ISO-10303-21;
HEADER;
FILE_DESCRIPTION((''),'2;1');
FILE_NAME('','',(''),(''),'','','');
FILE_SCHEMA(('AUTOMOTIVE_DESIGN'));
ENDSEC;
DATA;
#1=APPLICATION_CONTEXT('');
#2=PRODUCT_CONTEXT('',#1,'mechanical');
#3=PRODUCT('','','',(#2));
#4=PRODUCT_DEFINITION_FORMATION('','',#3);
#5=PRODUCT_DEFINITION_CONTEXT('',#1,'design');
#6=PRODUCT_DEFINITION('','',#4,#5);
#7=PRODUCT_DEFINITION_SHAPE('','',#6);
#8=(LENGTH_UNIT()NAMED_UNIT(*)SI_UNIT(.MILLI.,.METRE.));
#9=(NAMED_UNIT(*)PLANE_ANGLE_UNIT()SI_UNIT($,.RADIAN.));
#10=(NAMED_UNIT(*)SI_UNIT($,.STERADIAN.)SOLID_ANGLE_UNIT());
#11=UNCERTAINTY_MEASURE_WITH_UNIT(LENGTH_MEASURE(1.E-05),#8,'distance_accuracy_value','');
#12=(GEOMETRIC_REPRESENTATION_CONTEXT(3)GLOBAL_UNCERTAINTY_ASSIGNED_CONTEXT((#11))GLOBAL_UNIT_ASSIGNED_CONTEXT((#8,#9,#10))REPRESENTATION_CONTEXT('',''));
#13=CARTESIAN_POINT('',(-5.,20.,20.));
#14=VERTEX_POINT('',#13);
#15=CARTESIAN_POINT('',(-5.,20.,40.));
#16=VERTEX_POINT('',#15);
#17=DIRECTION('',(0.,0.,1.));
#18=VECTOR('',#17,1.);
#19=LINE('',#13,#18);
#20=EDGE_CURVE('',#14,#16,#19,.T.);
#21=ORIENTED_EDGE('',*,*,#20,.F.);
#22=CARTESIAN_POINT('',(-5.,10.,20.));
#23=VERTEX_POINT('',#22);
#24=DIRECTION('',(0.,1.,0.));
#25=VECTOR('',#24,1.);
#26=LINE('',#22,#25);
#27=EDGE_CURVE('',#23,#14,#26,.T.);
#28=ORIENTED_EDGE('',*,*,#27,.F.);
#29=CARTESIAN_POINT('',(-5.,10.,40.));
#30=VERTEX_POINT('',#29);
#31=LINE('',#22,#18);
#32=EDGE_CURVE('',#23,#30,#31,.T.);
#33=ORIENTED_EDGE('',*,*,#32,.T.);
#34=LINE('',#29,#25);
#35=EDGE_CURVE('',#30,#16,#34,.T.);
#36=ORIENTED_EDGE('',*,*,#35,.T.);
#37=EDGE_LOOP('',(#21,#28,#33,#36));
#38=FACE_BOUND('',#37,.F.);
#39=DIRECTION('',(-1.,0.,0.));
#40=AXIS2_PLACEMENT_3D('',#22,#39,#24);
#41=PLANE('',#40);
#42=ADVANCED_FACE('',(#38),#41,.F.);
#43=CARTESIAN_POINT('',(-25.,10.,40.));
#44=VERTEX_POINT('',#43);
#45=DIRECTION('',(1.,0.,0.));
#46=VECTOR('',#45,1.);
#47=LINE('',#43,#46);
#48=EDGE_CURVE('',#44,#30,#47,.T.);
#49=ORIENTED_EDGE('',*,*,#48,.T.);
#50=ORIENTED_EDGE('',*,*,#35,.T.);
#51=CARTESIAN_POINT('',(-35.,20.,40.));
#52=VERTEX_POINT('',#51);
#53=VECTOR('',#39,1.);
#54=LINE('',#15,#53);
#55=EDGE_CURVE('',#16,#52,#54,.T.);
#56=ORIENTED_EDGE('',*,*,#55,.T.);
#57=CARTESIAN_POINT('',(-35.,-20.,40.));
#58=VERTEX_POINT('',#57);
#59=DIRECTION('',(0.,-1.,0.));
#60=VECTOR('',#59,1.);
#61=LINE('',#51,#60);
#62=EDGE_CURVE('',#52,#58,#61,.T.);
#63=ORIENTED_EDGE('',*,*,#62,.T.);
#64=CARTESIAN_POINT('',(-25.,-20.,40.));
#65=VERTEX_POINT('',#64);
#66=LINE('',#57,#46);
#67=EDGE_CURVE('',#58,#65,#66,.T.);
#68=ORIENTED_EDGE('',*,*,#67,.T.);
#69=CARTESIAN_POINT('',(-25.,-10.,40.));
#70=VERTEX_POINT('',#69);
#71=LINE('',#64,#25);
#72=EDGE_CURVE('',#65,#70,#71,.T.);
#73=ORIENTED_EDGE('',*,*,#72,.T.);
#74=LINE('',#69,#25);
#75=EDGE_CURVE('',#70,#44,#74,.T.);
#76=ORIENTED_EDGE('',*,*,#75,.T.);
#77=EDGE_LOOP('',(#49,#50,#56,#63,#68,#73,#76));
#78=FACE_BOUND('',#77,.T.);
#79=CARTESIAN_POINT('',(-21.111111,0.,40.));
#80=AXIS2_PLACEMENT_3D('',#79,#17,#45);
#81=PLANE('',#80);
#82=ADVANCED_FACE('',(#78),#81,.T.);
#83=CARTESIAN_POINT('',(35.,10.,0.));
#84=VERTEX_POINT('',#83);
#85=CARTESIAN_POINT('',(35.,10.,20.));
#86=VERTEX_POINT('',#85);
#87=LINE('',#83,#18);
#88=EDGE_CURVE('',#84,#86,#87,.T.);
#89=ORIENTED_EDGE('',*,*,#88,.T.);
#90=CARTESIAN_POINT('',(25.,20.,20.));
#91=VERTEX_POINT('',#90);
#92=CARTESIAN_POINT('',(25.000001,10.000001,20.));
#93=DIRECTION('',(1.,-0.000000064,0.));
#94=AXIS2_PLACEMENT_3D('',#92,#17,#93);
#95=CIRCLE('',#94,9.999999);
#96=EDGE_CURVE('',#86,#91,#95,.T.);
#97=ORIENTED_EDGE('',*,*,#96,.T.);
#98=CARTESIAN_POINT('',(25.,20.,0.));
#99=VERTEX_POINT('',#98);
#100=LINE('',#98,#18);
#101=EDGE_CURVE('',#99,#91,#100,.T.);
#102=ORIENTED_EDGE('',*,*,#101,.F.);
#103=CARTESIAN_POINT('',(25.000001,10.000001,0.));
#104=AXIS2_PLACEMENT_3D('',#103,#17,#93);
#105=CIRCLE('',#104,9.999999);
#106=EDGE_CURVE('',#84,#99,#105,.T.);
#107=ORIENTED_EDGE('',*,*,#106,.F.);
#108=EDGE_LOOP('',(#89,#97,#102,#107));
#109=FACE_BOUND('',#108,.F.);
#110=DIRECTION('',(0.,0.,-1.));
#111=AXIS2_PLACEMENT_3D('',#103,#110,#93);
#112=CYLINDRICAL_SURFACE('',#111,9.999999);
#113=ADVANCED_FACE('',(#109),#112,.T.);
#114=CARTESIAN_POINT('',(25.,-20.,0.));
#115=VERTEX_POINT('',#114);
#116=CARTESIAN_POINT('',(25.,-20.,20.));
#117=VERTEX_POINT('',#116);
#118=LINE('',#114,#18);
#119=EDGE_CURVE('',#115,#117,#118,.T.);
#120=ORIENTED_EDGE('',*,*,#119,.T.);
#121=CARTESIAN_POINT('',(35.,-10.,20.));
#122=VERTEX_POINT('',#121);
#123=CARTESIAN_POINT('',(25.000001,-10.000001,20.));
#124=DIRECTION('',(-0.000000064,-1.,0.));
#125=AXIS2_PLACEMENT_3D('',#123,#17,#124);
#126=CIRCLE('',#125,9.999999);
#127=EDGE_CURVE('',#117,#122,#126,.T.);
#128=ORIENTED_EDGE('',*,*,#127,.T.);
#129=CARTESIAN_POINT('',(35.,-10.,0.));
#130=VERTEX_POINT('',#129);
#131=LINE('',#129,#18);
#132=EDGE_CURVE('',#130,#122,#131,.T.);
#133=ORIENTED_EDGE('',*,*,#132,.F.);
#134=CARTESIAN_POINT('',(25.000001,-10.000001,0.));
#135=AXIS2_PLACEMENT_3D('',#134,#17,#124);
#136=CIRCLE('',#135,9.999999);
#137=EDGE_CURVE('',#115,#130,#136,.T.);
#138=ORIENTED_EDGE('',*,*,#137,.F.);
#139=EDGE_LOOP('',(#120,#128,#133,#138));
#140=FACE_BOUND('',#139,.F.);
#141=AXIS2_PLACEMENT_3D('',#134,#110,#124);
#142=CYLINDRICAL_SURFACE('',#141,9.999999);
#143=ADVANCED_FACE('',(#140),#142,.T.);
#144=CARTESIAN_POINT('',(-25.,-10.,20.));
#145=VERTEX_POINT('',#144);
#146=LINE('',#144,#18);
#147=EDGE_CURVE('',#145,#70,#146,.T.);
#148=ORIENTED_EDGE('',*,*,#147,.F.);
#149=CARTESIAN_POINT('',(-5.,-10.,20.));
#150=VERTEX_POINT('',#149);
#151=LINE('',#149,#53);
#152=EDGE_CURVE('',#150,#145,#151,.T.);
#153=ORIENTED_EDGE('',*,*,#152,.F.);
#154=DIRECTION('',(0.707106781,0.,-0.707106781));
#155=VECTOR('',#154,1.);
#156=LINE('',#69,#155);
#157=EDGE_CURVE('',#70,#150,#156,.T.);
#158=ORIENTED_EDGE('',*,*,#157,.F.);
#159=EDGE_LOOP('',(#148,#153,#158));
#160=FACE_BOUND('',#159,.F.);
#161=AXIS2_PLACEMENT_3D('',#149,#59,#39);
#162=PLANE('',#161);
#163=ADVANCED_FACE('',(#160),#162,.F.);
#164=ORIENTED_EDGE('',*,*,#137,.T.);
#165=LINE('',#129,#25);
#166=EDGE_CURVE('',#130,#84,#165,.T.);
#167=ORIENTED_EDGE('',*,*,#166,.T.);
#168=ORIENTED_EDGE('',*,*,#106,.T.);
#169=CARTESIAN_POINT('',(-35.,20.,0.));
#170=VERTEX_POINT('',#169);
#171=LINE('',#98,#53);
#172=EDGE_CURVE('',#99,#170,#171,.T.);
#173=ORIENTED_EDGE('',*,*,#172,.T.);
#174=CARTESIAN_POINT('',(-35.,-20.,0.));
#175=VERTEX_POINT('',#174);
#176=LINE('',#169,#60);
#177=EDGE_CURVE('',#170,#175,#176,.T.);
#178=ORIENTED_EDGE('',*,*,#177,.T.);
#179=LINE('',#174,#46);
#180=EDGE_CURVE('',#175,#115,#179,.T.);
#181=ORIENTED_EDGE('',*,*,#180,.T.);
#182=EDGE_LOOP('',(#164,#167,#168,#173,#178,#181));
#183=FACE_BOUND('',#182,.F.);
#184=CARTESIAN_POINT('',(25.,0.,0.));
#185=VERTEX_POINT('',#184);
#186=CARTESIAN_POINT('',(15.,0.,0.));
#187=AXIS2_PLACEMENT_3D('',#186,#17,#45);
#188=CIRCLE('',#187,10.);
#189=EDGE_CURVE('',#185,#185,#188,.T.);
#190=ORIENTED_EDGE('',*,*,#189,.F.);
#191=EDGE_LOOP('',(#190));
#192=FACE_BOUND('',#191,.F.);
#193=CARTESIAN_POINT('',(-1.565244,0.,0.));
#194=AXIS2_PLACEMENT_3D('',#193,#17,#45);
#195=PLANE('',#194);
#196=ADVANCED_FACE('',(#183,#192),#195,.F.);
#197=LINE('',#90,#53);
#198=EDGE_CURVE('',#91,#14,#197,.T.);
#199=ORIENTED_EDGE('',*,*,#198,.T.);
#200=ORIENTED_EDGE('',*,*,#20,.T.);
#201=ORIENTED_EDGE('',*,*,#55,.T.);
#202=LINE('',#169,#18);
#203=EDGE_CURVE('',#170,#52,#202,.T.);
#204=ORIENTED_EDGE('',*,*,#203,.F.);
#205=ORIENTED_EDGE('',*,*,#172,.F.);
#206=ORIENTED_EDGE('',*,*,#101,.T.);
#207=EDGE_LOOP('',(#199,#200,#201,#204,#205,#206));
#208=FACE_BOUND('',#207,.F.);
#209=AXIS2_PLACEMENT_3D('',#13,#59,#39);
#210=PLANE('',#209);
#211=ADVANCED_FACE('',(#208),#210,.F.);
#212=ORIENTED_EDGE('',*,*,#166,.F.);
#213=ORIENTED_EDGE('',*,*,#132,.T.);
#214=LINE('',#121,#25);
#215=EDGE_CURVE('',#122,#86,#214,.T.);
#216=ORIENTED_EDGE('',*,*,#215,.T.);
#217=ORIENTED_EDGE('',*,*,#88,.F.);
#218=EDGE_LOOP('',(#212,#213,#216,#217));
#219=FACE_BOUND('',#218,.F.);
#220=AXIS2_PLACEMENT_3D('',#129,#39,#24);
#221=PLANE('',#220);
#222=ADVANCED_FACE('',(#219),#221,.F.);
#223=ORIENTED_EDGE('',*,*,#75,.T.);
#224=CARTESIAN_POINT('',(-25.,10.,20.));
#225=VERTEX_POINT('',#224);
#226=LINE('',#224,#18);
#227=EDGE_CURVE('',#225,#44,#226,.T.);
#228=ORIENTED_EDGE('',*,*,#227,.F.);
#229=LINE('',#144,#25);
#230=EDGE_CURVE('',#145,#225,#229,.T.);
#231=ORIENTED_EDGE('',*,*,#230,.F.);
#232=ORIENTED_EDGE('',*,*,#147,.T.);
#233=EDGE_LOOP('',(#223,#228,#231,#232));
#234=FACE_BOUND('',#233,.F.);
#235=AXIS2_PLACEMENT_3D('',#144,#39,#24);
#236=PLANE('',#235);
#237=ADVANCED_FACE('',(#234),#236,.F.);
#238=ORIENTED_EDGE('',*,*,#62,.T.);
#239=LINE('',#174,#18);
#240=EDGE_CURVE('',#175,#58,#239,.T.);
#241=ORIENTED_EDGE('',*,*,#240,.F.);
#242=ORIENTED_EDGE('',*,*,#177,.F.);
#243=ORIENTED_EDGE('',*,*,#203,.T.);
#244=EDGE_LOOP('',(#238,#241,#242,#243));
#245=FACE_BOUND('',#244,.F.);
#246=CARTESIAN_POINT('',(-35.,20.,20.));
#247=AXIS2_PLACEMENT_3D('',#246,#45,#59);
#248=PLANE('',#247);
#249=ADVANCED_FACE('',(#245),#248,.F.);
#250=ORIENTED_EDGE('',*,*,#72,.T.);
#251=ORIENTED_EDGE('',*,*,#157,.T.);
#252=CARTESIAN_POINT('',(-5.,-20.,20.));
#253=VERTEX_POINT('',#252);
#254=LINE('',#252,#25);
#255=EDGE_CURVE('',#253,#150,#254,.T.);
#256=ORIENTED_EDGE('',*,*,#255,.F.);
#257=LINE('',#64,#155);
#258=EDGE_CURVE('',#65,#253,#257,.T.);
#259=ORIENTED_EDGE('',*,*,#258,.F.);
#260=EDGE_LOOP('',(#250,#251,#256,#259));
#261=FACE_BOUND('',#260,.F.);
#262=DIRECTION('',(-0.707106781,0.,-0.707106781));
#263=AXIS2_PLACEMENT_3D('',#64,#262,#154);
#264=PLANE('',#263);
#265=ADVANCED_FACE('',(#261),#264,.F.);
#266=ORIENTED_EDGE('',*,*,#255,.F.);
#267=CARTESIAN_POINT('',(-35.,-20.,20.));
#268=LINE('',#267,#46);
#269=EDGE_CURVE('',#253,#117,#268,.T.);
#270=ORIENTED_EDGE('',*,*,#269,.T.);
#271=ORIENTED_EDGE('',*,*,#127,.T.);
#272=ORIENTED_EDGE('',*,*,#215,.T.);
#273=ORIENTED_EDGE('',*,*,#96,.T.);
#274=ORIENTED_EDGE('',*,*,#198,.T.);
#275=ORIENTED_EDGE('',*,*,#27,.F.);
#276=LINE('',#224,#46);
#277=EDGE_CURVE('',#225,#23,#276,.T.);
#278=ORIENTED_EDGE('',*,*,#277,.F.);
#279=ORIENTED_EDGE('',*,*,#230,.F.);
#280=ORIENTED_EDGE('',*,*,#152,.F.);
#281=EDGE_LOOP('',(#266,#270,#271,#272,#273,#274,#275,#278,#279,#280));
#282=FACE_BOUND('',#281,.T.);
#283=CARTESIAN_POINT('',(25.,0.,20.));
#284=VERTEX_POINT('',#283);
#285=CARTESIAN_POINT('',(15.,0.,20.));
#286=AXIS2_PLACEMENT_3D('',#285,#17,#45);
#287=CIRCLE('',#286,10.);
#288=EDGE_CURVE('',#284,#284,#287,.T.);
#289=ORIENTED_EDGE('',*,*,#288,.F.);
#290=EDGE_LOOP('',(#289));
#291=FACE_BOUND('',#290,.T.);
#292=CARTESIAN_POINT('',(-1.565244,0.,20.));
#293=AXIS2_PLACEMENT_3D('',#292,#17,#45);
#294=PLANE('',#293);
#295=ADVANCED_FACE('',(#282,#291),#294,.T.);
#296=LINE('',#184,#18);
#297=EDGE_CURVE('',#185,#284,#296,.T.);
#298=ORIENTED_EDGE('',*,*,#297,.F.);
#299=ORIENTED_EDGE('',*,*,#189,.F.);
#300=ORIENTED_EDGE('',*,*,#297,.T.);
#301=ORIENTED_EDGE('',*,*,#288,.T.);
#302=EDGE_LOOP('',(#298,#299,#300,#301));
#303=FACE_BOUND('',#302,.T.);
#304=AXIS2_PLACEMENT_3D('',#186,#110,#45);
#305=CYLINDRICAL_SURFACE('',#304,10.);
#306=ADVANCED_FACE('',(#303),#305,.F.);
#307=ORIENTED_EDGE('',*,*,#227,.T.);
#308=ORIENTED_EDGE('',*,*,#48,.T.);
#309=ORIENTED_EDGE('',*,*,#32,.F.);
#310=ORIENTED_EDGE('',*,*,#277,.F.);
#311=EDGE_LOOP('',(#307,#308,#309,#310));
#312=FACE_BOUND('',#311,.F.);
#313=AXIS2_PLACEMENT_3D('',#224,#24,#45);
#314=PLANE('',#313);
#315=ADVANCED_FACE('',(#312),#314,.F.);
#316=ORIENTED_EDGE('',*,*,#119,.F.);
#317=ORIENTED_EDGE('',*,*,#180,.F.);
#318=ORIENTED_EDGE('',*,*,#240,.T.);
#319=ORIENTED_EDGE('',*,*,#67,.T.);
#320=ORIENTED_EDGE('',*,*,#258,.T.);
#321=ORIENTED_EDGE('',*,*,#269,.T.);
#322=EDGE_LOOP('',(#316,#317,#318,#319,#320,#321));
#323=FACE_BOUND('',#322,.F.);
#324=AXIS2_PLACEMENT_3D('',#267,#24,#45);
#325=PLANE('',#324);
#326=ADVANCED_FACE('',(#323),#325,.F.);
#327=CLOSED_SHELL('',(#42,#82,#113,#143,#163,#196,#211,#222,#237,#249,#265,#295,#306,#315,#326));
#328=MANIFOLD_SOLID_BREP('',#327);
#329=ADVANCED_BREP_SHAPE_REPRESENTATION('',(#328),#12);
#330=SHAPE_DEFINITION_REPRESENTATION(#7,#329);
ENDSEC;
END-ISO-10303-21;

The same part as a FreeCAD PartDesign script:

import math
import FreeCAD as App
import Part
import Sketcher


def add_polygon(sketch, points):
    """Adds a closed chain of lines whose ends are joined by coincident constraints."""
    first, n = sketch.GeometryCount, len(points)
    for a, b in zip(points, points[1:] + points[:1]):
        sketch.addGeometry(Part.LineSegment(App.Vector(*a, 0), App.Vector(*b, 0)), False)
    for i in range(n):
        sketch.addConstraint(Sketcher.Constraint("Coincident", first + i, 2, first + (i + 1) % n, 1))

doc = App.newDocument("Part")
params = doc.addObject("Spreadsheet::Sheet", "Params")
for row, (alias, value) in enumerate([
    ("sketch1_diameter", "20 mm"),
    ("sketch1_width", "60 mm"),
    ("sketch1_height", "40 mm"),
    ("pad1_length", "20 mm"),
    ("sketch2_width", "30 mm"),
    ("sketch2_width2", "20 mm"),
    ("sketch2_height", "40 mm"),
    ("pad2_length", "20 mm"),
    ("sketch3_width", "20 mm"),
    ("pocket1_length", "10 mm"),
], start=1):
    params.set(f"A{row}", alias)
    params.set(f"B{row}", "=" + value)
    params.setAlias(f"B{row}", alias)

body = doc.addObject("PartDesign::Body", "Body")

sketch1 = body.newObject("Sketcher::SketchObject", "Sketch")
sketch1.AttachmentSupport = (doc.getObject("XY_Plane"), [""])
sketch1.MapMode = "FlatFace"
sketch1.addGeometry([
    Part.LineSegment(App.Vector(-35, 20, 0), App.Vector(-35, -20, 0)),
    Part.LineSegment(App.Vector(-35, -20, 0), App.Vector(25, -20, 0)),
    Part.ArcOfCircle(Part.Circle(App.Vector(25, -10, 0), App.Vector(0, 0, 1), 10), math.radians(-90), math.radians(0)),
    Part.LineSegment(App.Vector(35, -10, 0), App.Vector(35, 10, 0)),
    Part.ArcOfCircle(Part.Circle(App.Vector(25, 10, 0), App.Vector(0, 0, 1), 10), math.radians(0), math.radians(90)),
    Part.LineSegment(App.Vector(25, 20, 0), App.Vector(-35, 20, 0)),
    Part.Circle(App.Vector(15, 0, 0), App.Vector(0, 0, 1), 10),
], False)
sketch1.addConstraint([
    Sketcher.Constraint("Coincident", 0, 2, 1, 1),
    Sketcher.Constraint("Tangent", 1, 2, 2, 1),
    Sketcher.Constraint("Tangent", 2, 2, 3, 1),
    Sketcher.Constraint("Tangent", 3, 2, 4, 1),
    Sketcher.Constraint("Tangent", 4, 2, 5, 1),
    Sketcher.Constraint("Coincident", 5, 2, 0, 1),
    Sketcher.Constraint("Vertical", 0),
    Sketcher.Constraint("Horizontal", 1),
    Sketcher.Constraint("Vertical", 3),
    Sketcher.Constraint("Horizontal", 5),
    Sketcher.Constraint("Equal", 2, 4),
    Sketcher.Constraint("Equal", 4, 6),
    Sketcher.Constraint("PointOnObject", 6, 3, -1),
    Sketcher.Constraint("Diameter", 6, 20.0),
    Sketcher.Constraint("DistanceX", 1, 1, 1, 2, 60.0),
    Sketcher.Constraint("DistanceY", 0, 2, 0, 1, 40.0),
    Sketcher.Constraint("DistanceX", -1, 1, 2, 3, 25.000001),
    Sketcher.Constraint("DistanceY", 2, 3, -1, 1, 10.000001),
    Sketcher.Constraint("DistanceX", -1, 1, 6, 3, 15.0),
])
sketch1.setExpression("Constraints[13]", "Params.sketch1_diameter")
sketch1.setExpression("Constraints[14]", "Params.sketch1_width")
sketch1.setExpression("Constraints[15]", "Params.sketch1_height")
pad1 = body.newObject("PartDesign::Pad", "Pad")
pad1.Profile = sketch1
pad1.setExpression("Length", "Params.pad1_length")

sketch2 = body.newObject("Sketcher::SketchObject", "Sketch001")
sketch2.AttachmentSupport = (doc.getObject("XY_Plane"), [""])
sketch2.MapMode = "FlatFace"
sketch2.AttachmentOffset = App.Placement(App.Vector(0, 0, 20), App.Rotation())
add_polygon(sketch2, [(-5, 20), (-35, 20), (-35, -20), (-5, -20), (-5, -10), (-25, -10), (-25, 10), (-5, 10)])
sketch2.addConstraint([
    Sketcher.Constraint("Horizontal", 0),
    Sketcher.Constraint("Vertical", 1),
    Sketcher.Constraint("Horizontal", 2),
    Sketcher.Constraint("Vertical", 3),
    Sketcher.Constraint("Horizontal", 4),
    Sketcher.Constraint("Vertical", 5),
    Sketcher.Constraint("Horizontal", 6),
    Sketcher.Constraint("Vertical", 7),
    Sketcher.Constraint("Symmetric", 3, 2, 6, 2, -1),
    Sketcher.Constraint("Equal", 6, 5),
    Sketcher.Constraint("Equal", 3, 7),
    Sketcher.Constraint("DistanceX", 0, 2, 0, 1, 30.0),
    Sketcher.Constraint("DistanceX", 4, 2, 4, 1, 20.0),
    Sketcher.Constraint("DistanceY", 1, 2, 1, 1, 40.0),
    Sketcher.Constraint("DistanceX", 0, 2, -1, 1, 35.0),
])
sketch2.setExpression("Constraints[19]", "Params.sketch2_width")
sketch2.setExpression("Constraints[20]", "Params.sketch2_width2")
sketch2.setExpression("Constraints[21]", "Params.sketch2_height")
pad2 = body.newObject("PartDesign::Pad", "Pad001")
pad2.Profile = sketch2
pad2.setExpression("Length", "Params.pad2_length")

sketch3 = body.newObject("Sketcher::SketchObject", "Sketch002")
sketch3.AttachmentSupport = (doc.getObject("XZ_Plane"), [""])
sketch3.MapMode = "FlatFace"
sketch3.AttachmentOffset = App.Placement(App.Vector(0, 0, 20), App.Rotation())
add_polygon(sketch3, [(-25, 40), (-5, 20), (-5, 40)])
sketch3.addConstraint([
    Sketcher.Constraint("Vertical", 1),
    Sketcher.Constraint("Horizontal", 2),
    Sketcher.Constraint("Equal", 2, 1),
    Sketcher.Constraint("DistanceX", 2, 2, 2, 1, 20.0),
    Sketcher.Constraint("DistanceX", 0, 2, -1, 1, 5.0),
    Sketcher.Constraint("DistanceY", -1, 1, 0, 2, 20.0),
])
sketch3.setExpression("Constraints[6]", "Params.sketch3_width")
pocket1 = body.newObject("PartDesign::Pocket", "Pocket")
pocket1.Profile = sketch3
pocket1.setExpression("Length", "Params.pocket1_length")

doc.recompute()
